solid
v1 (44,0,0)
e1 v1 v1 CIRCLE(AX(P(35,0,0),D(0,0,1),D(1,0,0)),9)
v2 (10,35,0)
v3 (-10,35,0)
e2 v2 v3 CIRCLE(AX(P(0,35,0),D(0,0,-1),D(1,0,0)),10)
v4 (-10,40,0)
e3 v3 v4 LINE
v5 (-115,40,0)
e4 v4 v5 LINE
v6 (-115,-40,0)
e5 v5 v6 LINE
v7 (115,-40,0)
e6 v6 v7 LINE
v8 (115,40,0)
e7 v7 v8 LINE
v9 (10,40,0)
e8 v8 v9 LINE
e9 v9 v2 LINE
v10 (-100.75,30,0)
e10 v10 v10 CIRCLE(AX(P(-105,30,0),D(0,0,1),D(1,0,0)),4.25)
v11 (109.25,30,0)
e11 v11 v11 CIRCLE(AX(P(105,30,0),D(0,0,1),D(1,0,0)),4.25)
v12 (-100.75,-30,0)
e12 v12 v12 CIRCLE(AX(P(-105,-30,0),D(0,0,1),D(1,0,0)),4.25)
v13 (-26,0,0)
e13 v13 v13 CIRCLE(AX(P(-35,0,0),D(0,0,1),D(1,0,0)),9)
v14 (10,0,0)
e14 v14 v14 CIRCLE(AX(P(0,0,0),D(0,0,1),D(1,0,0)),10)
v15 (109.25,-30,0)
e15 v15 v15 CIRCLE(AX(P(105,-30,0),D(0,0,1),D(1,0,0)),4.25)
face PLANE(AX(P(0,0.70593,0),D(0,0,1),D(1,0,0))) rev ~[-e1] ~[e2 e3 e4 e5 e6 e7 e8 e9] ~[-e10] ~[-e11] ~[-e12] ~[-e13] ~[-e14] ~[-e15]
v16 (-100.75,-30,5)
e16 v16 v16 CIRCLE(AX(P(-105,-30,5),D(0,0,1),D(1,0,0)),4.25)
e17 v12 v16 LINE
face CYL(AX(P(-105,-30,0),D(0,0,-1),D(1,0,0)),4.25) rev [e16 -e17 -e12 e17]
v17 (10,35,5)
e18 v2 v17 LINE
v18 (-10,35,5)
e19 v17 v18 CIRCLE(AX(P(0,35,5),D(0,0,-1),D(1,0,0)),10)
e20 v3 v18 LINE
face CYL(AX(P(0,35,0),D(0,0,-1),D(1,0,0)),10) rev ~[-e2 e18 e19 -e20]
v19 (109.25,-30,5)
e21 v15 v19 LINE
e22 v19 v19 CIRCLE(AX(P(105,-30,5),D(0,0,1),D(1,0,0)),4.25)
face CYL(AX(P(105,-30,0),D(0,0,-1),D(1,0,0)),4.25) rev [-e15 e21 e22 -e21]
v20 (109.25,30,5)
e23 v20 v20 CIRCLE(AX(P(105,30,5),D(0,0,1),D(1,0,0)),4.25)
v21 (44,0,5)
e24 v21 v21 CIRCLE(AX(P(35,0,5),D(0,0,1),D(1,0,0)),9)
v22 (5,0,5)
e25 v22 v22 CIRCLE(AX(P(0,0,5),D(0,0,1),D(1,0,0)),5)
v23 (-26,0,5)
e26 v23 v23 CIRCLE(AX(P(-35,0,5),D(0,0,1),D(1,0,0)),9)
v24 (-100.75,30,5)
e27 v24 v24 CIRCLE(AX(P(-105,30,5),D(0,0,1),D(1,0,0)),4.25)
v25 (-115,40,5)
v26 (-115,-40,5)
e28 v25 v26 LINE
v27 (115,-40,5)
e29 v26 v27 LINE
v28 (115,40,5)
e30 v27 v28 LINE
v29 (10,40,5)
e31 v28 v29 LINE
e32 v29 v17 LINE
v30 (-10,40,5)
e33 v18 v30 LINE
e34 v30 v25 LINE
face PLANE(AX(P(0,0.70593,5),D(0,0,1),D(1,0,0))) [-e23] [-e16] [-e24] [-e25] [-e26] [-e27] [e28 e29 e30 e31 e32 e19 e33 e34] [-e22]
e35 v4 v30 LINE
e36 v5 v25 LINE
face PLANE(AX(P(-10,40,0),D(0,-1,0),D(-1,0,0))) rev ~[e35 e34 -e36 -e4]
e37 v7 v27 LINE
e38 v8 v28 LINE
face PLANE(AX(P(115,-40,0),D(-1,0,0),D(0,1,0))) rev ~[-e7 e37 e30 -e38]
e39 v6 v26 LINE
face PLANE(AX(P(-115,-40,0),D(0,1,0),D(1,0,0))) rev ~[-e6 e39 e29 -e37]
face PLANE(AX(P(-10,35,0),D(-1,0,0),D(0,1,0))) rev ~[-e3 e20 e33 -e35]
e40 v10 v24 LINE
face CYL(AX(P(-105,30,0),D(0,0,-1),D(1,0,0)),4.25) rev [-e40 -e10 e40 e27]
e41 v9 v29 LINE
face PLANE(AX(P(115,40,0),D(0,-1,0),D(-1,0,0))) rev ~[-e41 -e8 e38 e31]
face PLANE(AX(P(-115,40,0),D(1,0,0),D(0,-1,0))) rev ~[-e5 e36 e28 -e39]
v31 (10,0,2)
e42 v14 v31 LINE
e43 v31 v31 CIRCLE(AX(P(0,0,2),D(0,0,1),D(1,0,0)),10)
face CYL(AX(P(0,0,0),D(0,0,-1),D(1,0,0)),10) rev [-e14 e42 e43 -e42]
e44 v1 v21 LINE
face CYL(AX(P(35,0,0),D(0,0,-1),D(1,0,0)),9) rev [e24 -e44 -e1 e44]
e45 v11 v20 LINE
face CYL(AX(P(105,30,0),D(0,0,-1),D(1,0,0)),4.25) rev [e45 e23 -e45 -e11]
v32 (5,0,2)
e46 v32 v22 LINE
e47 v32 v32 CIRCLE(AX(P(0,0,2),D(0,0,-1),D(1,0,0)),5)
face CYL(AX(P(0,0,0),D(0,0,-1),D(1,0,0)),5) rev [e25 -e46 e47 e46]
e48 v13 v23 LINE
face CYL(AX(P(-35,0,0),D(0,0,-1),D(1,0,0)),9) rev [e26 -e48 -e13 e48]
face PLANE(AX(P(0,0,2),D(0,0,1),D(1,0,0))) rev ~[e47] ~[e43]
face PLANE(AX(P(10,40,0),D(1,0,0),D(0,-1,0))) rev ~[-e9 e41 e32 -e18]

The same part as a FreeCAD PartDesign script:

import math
import FreeCAD as App
import Part
import Sketcher

V = App.Vector

doc = App.newDocument("Part")
params = doc.addObject("Spreadsheet::Sheet", "Params")
for row, (alias, value) in enumerate([
    ("sketch1_diameter", "18 mm"),
    ("sketch1_diameter2", "10 mm"),
    ("sketch1_radius", "10 mm"),
    ("sketch1_diameter3", "8.5 mm"),
    ("sketch1_width", "105 mm"),
    ("pad1_length", "5 mm"),
    ("sketch2_diameter", "20 mm"),
    ("pocket1_length", "2 mm"),
], start=1):
    params.set(f"A{row}", alias)
    params.set(f"B{row}", "=" + value)
    params.setAlias(f"B{row}", alias)

body = doc.addObject("PartDesign::Body", "Body")

# Sketch on XY plane
sketch1 = body.newObject("Sketcher::SketchObject", "Sketch")
sketch1.AttachmentSupport = (doc.getObject("XY_Plane"), [""])
sketch1.MapMode = "FlatFace"
sketch1.addGeometry([
    Part.LineSegment(V(115, -40, 0), V(115, 40, 0)),  # 0
    Part.LineSegment(V(115, 40, 0), V(10, 40, 0)),  # 1
    Part.LineSegment(V(10, 40, 0), V(10, 35, 0)),  # 2
    Part.ArcOfCircle(Part.Circle(V(0, 35, 0), V(0, 0, 1), 10), math.radians(180), math.radians(360)),  # 3
    Part.LineSegment(V(-10, 35, 0), V(-10, 40, 0)),  # 4
    Part.LineSegment(V(-10, 40, 0), V(-115, 40, 0)),  # 5
    Part.LineSegment(V(-115, 40, 0), V(-115, -40, 0)),  # 6
    Part.LineSegment(V(-115, -40, 0), V(115, -40, 0)),  # 7
    Part.Circle(V(-105, -30, 0), V(0, 0, 1), 4.2),  # 8
    Part.Circle(V(105, -30, 0), V(0, 0, 1), 4.2),  # 9
    Part.Circle(V(-35, 0, 0), V(0, 0, 1), 9),  # 10
    Part.Circle(V(-105, 30, 0), V(0, 0, 1), 4.2),  # 11
    Part.Circle(V(0, 0, 0), V(0, 0, 1), 5),  # 12
    Part.Circle(V(35, 0, 0), V(0, 0, 1), 9),  # 13
    Part.Circle(V(105, 30, 0), V(0, 0, 1), 4.2),  # 14
], False)
sketch1.addConstraint([
    Sketcher.Constraint("Coincident", 0, 2, 1, 1),
    Sketcher.Constraint("Coincident", 1, 2, 2, 1),
    Sketcher.Constraint("Tangent", 2, 2, 3, 2),
    Sketcher.Constraint("Tangent", 3, 1, 4, 1),
    Sketcher.Constraint("Coincident", 4, 2, 5, 1),
    Sketcher.Constraint("Coincident", 5, 2, 6, 1),
    Sketcher.Constraint("Coincident", 6, 2, 7, 1),
    Sketcher.Constraint("Coincident", 7, 2, 0, 1),
    Sketcher.Constraint("Vertical", 0),
    Sketcher.Constraint("Horizontal", 1),
    Sketcher.Constraint("Vertical", 2),
    Sketcher.Constraint("Vertical", 4),
    Sketcher.Constraint("Horizontal", 5),
    Sketcher.Constraint("Vertical", 6),
    Sketcher.Constraint("Horizontal", 7),
    Sketcher.Constraint("Coincident", 12, 3, -1, 1),
    Sketcher.Constraint("Equal", 8, 9),
    Sketcher.Constraint("Equal", 9, 11),
    Sketcher.Constraint("Equal", 10, 13),
    Sketcher.Constraint("Equal", 11, 14),
    Sketcher.Constraint("Symmetric", 9, 3, 11, 3, -1, 1),
    Sketcher.Constraint("Symmetric", 10, 3, 13, 3, -1, 1),
    Sketcher.Constraint("Symmetric", 8, 3, 14, 3, -1, 1),
    Sketcher.Constraint("Symmetric", 0, 2, 6, 2, -1, 1),
    Sketcher.Constraint("Symmetric", 8, 3, 9, 3, -2),
    Sketcher.Constraint("Symmetric", 1, 2, 4, 2, -2),
    Sketcher.Constraint("PointOnObject", 10, 3, -1),
    Sketcher.Constraint("Diameter", 10, 18.0),
    Sketcher.Constraint("Diameter", 12, 10.0),
    Sketcher.Constraint("Radius", 3, 10.0),
    Sketcher.Constraint("Diameter", 8, 8.5),
    Sketcher.Constraint("DistanceX", 1, 2, 1, 1, 105.0),
    Sketcher.Constraint("DistanceY", 0, 1, 0, 2, 80.0),
    Sketcher.Constraint("DistanceY", 2, 2, 2, 1, 5.0),
    Sketcher.Constraint("DistanceX", 8, 3, -1, 1, 105.0),
    Sketcher.Constraint("DistanceY", 8, 3, -1, 1, 30.0),
    Sketcher.Constraint("DistanceX", 10, 3, -1, 1, 35.0),
])
sketch1.setExpression("Constraints[27]", "Params.sketch1_diameter")
sketch1.setExpression("Constraints[28]", "Params.sketch1_diameter2")
sketch1.setExpression("Constraints[29]", "Params.sketch1_radius")
sketch1.setExpression("Constraints[30]", "Params.sketch1_diameter3")
sketch1.setExpression("Constraints[31]", "Params.sketch1_width")
pad1 = body.newObject("PartDesign::Pad", "Pad")
pad1.Profile = sketch1
pad1.setExpression("Length", "Params.pad1_length")

# Sketch on XY plane
sketch2 = body.newObject("Sketcher::SketchObject", "Sketch001")
sketch2.AttachmentSupport = (doc.getObject("XY_Plane"), [""])
sketch2.MapMode = "FlatFace"
sketch2.addGeometry(Part.Circle(V(0, 0, 0), V(0, 0, 1), 10), False)
sketch2.addConstraint([
    Sketcher.Constraint("Coincident", 0, 3, -1, 1),
    Sketcher.Constraint("Diameter", 0, 20.0),
])
sketch2.setExpression("Constraints[1]", "Params.sketch2_diameter")
pocket1 = body.newObject("PartDesign::Pocket", "Pocket")
pocket1.Profile = sketch2
pocket1.setExpression("Length", "Params.pocket1_length")
pocket1.Reversed = True

doc.recompute()
